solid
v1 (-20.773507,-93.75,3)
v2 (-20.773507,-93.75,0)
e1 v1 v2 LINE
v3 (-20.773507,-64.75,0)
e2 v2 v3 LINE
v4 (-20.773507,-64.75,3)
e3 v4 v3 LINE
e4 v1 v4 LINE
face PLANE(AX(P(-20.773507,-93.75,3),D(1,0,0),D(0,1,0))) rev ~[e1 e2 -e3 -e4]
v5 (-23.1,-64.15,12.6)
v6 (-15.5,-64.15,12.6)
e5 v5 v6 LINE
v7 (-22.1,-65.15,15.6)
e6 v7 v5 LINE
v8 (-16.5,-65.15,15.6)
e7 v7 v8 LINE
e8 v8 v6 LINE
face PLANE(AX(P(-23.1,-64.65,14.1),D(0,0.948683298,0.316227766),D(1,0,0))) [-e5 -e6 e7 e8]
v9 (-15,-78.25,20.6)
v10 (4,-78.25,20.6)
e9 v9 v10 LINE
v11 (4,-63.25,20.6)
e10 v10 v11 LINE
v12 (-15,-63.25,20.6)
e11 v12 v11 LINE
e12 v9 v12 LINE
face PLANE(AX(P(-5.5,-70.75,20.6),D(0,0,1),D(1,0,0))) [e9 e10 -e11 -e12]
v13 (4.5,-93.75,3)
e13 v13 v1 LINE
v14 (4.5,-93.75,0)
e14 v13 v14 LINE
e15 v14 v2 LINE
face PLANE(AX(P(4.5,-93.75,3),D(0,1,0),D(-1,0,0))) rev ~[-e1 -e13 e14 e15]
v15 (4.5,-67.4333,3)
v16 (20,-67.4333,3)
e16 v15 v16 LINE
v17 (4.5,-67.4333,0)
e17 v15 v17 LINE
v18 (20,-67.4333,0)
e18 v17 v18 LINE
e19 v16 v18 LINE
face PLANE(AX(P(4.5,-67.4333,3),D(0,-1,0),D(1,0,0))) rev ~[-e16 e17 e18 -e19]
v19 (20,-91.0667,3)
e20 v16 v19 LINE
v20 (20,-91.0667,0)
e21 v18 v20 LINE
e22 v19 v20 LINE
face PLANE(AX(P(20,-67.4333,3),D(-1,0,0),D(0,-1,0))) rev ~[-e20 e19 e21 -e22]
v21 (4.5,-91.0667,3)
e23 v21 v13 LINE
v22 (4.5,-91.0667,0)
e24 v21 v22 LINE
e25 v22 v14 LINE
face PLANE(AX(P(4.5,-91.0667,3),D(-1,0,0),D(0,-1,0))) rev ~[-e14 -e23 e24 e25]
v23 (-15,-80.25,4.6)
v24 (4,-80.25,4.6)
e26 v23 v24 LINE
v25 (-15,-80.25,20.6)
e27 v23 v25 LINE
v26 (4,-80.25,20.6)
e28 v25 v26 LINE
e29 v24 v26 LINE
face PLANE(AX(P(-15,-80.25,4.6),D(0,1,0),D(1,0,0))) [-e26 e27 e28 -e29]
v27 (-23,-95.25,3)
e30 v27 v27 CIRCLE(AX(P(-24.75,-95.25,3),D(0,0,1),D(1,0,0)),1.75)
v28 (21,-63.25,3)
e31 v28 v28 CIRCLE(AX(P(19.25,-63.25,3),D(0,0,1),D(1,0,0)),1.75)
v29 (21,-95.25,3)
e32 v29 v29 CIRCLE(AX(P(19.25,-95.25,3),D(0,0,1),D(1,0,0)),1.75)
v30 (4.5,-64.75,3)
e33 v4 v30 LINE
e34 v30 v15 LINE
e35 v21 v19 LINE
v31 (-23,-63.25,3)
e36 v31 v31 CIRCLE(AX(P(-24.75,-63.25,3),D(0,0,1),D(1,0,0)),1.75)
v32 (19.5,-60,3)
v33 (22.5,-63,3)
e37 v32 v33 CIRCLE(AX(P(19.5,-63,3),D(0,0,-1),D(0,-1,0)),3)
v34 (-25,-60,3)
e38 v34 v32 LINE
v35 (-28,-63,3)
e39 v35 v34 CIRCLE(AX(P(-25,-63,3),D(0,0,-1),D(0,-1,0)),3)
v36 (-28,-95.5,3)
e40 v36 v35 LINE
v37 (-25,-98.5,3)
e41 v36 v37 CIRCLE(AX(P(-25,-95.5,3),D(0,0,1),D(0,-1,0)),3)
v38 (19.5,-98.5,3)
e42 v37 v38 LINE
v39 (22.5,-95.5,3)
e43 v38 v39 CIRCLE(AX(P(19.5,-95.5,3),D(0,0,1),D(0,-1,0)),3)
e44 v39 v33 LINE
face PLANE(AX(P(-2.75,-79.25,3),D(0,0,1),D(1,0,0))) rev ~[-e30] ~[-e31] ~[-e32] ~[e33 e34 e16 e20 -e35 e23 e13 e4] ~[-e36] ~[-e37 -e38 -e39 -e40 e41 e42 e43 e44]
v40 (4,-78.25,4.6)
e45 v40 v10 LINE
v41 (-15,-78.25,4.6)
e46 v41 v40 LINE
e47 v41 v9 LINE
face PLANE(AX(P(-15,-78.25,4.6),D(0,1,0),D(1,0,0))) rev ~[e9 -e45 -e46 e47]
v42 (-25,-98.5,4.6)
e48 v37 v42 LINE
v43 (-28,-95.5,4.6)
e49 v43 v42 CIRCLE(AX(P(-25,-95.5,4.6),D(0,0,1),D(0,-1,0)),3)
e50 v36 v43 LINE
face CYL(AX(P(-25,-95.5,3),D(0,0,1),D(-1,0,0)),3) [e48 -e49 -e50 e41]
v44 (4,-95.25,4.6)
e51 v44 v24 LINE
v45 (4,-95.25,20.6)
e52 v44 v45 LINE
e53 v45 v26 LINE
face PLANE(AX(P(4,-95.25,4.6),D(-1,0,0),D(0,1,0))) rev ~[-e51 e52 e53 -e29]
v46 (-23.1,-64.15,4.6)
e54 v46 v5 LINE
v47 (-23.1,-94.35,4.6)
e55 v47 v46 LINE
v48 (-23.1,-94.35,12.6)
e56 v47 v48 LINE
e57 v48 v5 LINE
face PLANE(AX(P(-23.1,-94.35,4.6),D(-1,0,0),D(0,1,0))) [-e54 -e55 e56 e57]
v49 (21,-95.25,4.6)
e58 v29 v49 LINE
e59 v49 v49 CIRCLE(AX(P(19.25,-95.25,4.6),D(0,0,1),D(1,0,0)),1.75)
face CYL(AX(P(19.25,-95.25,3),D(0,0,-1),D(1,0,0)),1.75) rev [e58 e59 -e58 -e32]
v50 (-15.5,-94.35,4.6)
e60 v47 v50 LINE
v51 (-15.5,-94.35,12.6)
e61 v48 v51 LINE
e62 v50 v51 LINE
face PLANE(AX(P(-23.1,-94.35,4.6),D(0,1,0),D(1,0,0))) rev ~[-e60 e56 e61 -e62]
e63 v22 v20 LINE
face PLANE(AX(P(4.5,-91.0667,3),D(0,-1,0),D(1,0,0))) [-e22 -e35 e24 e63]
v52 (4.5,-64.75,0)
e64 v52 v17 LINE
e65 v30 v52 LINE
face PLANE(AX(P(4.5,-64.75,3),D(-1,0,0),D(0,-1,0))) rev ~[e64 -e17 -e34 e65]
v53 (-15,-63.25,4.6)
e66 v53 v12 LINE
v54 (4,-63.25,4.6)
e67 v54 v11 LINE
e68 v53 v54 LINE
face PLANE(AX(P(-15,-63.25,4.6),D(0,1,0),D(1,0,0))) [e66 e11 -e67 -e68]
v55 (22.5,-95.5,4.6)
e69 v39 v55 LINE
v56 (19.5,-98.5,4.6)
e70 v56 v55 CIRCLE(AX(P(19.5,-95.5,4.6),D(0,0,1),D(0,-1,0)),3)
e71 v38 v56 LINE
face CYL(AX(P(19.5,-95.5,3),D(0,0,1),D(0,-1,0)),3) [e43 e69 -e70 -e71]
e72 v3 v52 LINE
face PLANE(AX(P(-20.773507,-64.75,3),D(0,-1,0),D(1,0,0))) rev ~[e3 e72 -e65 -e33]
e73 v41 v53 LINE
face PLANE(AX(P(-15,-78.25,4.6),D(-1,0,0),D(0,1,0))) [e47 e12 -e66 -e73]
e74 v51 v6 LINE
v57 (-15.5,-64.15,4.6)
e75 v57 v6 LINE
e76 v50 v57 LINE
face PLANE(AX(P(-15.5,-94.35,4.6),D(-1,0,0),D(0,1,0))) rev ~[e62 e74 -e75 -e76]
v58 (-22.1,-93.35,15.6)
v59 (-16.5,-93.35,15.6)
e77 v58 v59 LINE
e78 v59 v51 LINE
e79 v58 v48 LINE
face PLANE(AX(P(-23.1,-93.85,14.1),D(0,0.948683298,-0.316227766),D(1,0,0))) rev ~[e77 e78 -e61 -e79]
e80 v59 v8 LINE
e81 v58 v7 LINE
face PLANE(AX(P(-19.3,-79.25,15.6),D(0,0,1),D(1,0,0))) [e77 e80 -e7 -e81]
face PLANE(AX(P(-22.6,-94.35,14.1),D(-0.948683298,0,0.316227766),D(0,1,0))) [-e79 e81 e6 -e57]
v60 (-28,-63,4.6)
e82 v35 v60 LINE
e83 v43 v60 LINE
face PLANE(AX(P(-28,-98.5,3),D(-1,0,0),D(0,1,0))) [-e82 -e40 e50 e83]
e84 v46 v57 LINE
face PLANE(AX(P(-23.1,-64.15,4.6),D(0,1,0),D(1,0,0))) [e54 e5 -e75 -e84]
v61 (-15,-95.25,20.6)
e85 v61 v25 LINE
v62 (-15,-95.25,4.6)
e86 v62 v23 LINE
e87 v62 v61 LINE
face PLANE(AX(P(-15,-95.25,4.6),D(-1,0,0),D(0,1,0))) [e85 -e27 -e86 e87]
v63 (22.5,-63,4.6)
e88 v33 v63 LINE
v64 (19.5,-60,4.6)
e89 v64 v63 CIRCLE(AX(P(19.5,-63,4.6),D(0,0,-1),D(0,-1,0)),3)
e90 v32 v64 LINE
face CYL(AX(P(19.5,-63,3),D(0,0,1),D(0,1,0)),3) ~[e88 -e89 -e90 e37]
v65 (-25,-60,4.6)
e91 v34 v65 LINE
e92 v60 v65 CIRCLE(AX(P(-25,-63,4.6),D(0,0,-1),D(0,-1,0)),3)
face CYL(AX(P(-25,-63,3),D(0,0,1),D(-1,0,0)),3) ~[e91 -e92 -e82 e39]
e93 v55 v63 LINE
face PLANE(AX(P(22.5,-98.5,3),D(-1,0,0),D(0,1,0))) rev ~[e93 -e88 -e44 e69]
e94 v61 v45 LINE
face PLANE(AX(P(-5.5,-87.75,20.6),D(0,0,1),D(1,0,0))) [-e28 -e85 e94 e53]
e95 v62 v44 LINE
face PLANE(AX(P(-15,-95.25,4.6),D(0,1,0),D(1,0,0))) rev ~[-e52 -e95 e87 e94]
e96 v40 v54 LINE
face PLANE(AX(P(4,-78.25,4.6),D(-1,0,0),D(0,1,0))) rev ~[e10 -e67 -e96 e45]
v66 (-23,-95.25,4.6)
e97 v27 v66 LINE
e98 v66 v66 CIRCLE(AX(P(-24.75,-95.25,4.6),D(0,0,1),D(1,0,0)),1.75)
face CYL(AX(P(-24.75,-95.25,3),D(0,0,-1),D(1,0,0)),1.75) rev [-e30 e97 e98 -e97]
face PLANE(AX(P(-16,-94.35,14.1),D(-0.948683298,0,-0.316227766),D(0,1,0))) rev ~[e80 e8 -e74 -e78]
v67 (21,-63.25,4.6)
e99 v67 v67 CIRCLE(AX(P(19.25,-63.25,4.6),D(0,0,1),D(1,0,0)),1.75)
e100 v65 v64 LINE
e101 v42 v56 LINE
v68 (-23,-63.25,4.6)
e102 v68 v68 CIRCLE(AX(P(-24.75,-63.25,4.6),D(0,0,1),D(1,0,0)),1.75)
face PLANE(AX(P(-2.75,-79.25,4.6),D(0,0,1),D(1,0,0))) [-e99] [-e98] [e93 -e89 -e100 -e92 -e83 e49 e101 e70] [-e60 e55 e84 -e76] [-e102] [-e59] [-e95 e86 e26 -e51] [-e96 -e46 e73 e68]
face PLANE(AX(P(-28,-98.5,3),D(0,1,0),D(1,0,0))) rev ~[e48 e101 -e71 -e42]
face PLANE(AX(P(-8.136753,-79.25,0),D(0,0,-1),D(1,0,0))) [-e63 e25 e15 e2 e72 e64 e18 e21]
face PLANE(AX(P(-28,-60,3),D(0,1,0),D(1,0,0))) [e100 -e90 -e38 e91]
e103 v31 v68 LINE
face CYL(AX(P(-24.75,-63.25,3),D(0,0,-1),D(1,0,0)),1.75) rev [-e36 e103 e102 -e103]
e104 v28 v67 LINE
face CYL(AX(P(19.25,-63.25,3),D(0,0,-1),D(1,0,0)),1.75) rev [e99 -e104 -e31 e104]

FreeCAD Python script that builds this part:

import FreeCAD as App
import Part
import Sketcher
from FreeCAD import Vector
Q = App.Units.Quantity


def edges_at(feature, points):
    """Names of the edges that pass closest to the given points."""
    edges = feature.Shape.Edges
    near = lambda p: min(range(len(edges)), key=lambda i: edges[i].distToShape(Part.Vertex(*p))[0])
    return sorted({f"Edge{near(p) + 1}" for p in points})


def add_polygon(sketch, points):
    """Adds a closed chain of lines whose ends are joined by coincident constraints."""
    first, n = sketch.GeometryCount, len(points)
    for a, b in zip(points, points[1:] + points[:1]):
        sketch.addGeometry(Part.LineSegment(App.Vector(*a, 0), App.Vector(*b, 0)), False)
    for i in range(n):
        sketch.addConstraint(Sketcher.Constraint("Coincident", first + i, 2, first + (i + 1) % n, 1))

doc = App.newDocument("Part")
body = doc.addObject("PartDesign::Body", "Body")

# Sketch on XY plane
sketch1 = doc.addObject("Sketcher::SketchObject", "Sketch")
body.addObject(sketch1)
sketch1.AttachmentSupport = (doc.XY_Plane, [""])
sketch1.MapMode = "FlatFace"
sketch1.AttachmentOffset = App.Placement(Vector(0, 0, 3), App.Rotation())
add_polygon(sketch1, [(-28, -60), (-28, -98.5), (22.5, -98.5), (22.5, -60)])  # lines 0-3
sketch1.addGeometry(Part.Circle(Vector(-24.8, -95.2, 0), Vector(0, 0, 1), 1.8), False)  # 4
sketch1.addGeometry(Part.Circle(Vector(19.2, -95.2, 0), Vector(0, 0, 1), 1.8), False)  # 5
sketch1.addGeometry(Part.Circle(Vector(-24.8, -63.2, 0), Vector(0, 0, 1), 1.8), False)  # 6
sketch1.addGeometry(Part.Circle(Vector(19.2, -63.2, 0), Vector(0, 0, 1), 1.8), False)  # 7
sketch1.addConstraint([
    Sketcher.Constraint("Vertical", 0),
    Sketcher.Constraint("Horizontal", 1),
    Sketcher.Constraint("Vertical", 2),
    Sketcher.Constraint("Horizontal", 3),
    Sketcher.Constraint("Equal", 4, 5),
    Sketcher.Constraint("Equal", 5, 6),
    Sketcher.Constraint("Equal", 6, 7),
    Sketcher.Constraint("Horizontal", 4, 3, 5, 3),
    Sketcher.Constraint("Horizontal", 6, 3, 7, 3),
    Sketcher.Constraint("Vertical", 4, 3, 6, 3),
    Sketcher.Constraint("Vertical", 5, 3, 7, 3),
    Sketcher.Constraint("Diameter", 4, Q("3.5 mm")),
    Sketcher.Constraint("DistanceX", 1, 1, 1, 2, Q("50.5 mm")),
    Sketcher.Constraint("DistanceY", 0, 2, 0, 1, Q("38.5 mm")),
    Sketcher.Constraint("DistanceX", 0, 2, -1, 1, Q("28 mm")),
    Sketcher.Constraint("DistanceY", 2, 2, -1, 1, Q("60 mm")),
    Sketcher.Constraint("DistanceX", 4, 3, 5, 3, Q("44 mm")),
    Sketcher.Constraint("DistanceY", 4, 3, 6, 3, Q("32 mm")),
    Sketcher.Constraint("DistanceX", 4, 3, -1, 1, Q("24.75 mm")),
    Sketcher.Constraint("DistanceY", 4, 3, -1, 1, Q("95.25 mm")),
])
pad1 = doc.addObject("PartDesign::Pad", "Pad")
body.addObject(pad1)
pad1.Profile = sketch1
pad1.Length = 1.6
doc.recompute()

fillet = doc.addObject("PartDesign::Fillet", "Fillet")
body.addObject(fillet)
fillet.Base = (pad1, edges_at(pad1, [
    (22.5, -98.5, 3.8),
    (22.5, -60, 3.8),
    (-28, -60, 3.8),
    (-28, -98.5, 3.8),
]))
fillet.Radius = 3

# Sketch on XY plane
sketch2 = doc.addObject("Sketcher::SketchObject", "Sketch001")
body.addObject(sketch2)
sketch2.AttachmentSupport = (doc.XY_Plane, [""])
sketch2.MapMode = "FlatFace"
sketch2.AttachmentOffset = App.Placement(Vector(0, 0, 3), App.Rotation())
add_polygon(sketch2, [(-20.8, -93.8), (-20.8, -64.8), (4.5, -64.8), (4.5, -67.4), (20, -67.4), (20, -91.1), (4.5, -91.1), (4.5, -93.8)])  # lines 0-7
sketch2.addConstraint([
    Sketcher.Constraint("Vertical", 0),
    Sketcher.Constraint("Horizontal", 1),
    Sketcher.Constraint("Vertical", 2),
    Sketcher.Constraint("Horizontal", 3),
    Sketcher.Constraint("Vertical", 4),
    Sketcher.Constraint("Horizontal", 5),
    Sketcher.Constraint("Vertical", 6),
    Sketcher.Constraint("Horizontal", 7),
    Sketcher.Constraint("Vertical", 2, 2, 5, 2),
    Sketcher.Constraint("Equal", 2, 6),
    Sketcher.Constraint("DistanceY", 0, 1, 0, 2, Q("29 mm")),
    Sketcher.Constraint("DistanceX", 3, 1, 3, 2, Q("15.5 mm")),
    Sketcher.Constraint("DistanceX", -1, 1, 3, 2, Q("20 mm")),
    Sketcher.Constraint("DistanceY", 0, 2, -1, 1, Q("64.75 mm")),
    Sketcher.Constraint("DistanceY", 2, 2, 2, 1, Q("2.6833 mm")),
    Sketcher.Constraint("DistanceX", 1, 1, 1, 2, Q("25.273507 mm")),
])
pad2 = doc.addObject("PartDesign::Pad", "Pad001")
body.addObject(pad2)
pad2.Profile = sketch2
pad2.Length = 3
pad2.Reversed = True

# Sketch on XY plane
sketch3 = doc.addObject("Sketcher::SketchObject", "Sketch002")
body.addObject(sketch3)
sketch3.AttachmentSupport = (doc.XY_Plane, [""])
sketch3.MapMode = "FlatFace"
sketch3.AttachmentOffset = App.Placement(Vector(0, 0, 4.6), App.Rotation())
add_polygon(sketch3, [(-15, -63), (-15, -78), (4, -78), (4, -63)])  # lines 0-3
add_polygon(sketch3, [(-15, -80), (-15, -95), (4, -95), (4, -80)])  # lines 4-7
sketch3.addConstraint([
    Sketcher.Constraint("Vertical", 0),
    Sketcher.Constraint("Horizontal", 1),
    Sketcher.Constraint("Vertical", 2),
    Sketcher.Constraint("Horizontal", 3),
    Sketcher.Constraint("Vertical", 4),
    Sketcher.Constraint("Horizontal", 5),
    Sketcher.Constraint("Vertical", 6),
    Sketcher.Constraint("Horizontal", 7),
    Sketcher.Constraint("Vertical", 3, 2, 4, 2),
    Sketcher.Constraint("Vertical", 2, 2, 5, 2),
    Sketcher.Constraint("Equal", 2, 4),
    Sketcher.Constraint("DistanceX", 1, 1, 1, 2, Q("19 mm")),
    Sketcher.Constraint("DistanceY", 0, 2, 0, 1, Q("15 mm")),
    Sketcher.Constraint("DistanceX", 0, 2, -1, 1, Q("15 mm")),
    Sketcher.Constraint("DistanceY", 4, 2, 0, 2, Q("17 mm")),
    Sketcher.Constraint("DistanceY", 0, 2, -1, 1, Q("78.25 mm")),
])
pad3 = doc.addObject("PartDesign::Pad", "Pad002")
body.addObject(pad3)
pad3.Profile = sketch3
pad3.Length = 16

# Sketch on XY plane
sketch4 = doc.addObject("Sketcher::SketchObject", "Sketch003")
body.addObject(sketch4)
sketch4.AttachmentSupport = (doc.XY_Plane, [""])
sketch4.MapMode = "FlatFace"
sketch4.AttachmentOffset = App.Placement(Vector(0, 0, 4.6), App.Rotation())
add_polygon(sketch4, [(-23, -64), (-23, -94), (-16, -94), (-16, -64)])  # lines 0-3
sketch4.addConstraint([
    Sketcher.Constraint("Vertical", 0),
    Sketcher.Constraint("Horizontal", 1),
    Sketcher.Constraint("Vertical", 2),
    Sketcher.Constraint("Horizontal", 3),
    Sketcher.Constraint("DistanceX", 1, 1, 1, 2, Q("7.6 mm")),
    Sketcher.Constraint("DistanceY", 0, 2, 0, 1, Q("30.2 mm")),
    Sketcher.Constraint("DistanceX", 0, 2, -1, 1, Q("23.1 mm")),
    Sketcher.Constraint("DistanceY", 0, 2, -1, 1, Q("94.35 mm")),
])
pad4 = doc.addObject("PartDesign::Pad", "Pad003")
body.addObject(pad4)
pad4.Profile = sketch4
pad4.Length = 11
doc.recompute()

chamfer = doc.addObject("PartDesign::Chamfer", "Chamfer")
body.addObject(chamfer)
chamfer.Base = (pad4, edges_at(pad4, [
    (-23.1, -79.25, 15.6),
    (-19.3, -64.15, 15.6),
    (-19.3, -94.35, 15.6),
    (-15.5, -79.25, 15.6),
]))
chamfer.ChamferType = "Two distances"
chamfer.Size = 1
chamfer.Size2 = 3
chamfer.FlipDirection = True

doc.recompute()
